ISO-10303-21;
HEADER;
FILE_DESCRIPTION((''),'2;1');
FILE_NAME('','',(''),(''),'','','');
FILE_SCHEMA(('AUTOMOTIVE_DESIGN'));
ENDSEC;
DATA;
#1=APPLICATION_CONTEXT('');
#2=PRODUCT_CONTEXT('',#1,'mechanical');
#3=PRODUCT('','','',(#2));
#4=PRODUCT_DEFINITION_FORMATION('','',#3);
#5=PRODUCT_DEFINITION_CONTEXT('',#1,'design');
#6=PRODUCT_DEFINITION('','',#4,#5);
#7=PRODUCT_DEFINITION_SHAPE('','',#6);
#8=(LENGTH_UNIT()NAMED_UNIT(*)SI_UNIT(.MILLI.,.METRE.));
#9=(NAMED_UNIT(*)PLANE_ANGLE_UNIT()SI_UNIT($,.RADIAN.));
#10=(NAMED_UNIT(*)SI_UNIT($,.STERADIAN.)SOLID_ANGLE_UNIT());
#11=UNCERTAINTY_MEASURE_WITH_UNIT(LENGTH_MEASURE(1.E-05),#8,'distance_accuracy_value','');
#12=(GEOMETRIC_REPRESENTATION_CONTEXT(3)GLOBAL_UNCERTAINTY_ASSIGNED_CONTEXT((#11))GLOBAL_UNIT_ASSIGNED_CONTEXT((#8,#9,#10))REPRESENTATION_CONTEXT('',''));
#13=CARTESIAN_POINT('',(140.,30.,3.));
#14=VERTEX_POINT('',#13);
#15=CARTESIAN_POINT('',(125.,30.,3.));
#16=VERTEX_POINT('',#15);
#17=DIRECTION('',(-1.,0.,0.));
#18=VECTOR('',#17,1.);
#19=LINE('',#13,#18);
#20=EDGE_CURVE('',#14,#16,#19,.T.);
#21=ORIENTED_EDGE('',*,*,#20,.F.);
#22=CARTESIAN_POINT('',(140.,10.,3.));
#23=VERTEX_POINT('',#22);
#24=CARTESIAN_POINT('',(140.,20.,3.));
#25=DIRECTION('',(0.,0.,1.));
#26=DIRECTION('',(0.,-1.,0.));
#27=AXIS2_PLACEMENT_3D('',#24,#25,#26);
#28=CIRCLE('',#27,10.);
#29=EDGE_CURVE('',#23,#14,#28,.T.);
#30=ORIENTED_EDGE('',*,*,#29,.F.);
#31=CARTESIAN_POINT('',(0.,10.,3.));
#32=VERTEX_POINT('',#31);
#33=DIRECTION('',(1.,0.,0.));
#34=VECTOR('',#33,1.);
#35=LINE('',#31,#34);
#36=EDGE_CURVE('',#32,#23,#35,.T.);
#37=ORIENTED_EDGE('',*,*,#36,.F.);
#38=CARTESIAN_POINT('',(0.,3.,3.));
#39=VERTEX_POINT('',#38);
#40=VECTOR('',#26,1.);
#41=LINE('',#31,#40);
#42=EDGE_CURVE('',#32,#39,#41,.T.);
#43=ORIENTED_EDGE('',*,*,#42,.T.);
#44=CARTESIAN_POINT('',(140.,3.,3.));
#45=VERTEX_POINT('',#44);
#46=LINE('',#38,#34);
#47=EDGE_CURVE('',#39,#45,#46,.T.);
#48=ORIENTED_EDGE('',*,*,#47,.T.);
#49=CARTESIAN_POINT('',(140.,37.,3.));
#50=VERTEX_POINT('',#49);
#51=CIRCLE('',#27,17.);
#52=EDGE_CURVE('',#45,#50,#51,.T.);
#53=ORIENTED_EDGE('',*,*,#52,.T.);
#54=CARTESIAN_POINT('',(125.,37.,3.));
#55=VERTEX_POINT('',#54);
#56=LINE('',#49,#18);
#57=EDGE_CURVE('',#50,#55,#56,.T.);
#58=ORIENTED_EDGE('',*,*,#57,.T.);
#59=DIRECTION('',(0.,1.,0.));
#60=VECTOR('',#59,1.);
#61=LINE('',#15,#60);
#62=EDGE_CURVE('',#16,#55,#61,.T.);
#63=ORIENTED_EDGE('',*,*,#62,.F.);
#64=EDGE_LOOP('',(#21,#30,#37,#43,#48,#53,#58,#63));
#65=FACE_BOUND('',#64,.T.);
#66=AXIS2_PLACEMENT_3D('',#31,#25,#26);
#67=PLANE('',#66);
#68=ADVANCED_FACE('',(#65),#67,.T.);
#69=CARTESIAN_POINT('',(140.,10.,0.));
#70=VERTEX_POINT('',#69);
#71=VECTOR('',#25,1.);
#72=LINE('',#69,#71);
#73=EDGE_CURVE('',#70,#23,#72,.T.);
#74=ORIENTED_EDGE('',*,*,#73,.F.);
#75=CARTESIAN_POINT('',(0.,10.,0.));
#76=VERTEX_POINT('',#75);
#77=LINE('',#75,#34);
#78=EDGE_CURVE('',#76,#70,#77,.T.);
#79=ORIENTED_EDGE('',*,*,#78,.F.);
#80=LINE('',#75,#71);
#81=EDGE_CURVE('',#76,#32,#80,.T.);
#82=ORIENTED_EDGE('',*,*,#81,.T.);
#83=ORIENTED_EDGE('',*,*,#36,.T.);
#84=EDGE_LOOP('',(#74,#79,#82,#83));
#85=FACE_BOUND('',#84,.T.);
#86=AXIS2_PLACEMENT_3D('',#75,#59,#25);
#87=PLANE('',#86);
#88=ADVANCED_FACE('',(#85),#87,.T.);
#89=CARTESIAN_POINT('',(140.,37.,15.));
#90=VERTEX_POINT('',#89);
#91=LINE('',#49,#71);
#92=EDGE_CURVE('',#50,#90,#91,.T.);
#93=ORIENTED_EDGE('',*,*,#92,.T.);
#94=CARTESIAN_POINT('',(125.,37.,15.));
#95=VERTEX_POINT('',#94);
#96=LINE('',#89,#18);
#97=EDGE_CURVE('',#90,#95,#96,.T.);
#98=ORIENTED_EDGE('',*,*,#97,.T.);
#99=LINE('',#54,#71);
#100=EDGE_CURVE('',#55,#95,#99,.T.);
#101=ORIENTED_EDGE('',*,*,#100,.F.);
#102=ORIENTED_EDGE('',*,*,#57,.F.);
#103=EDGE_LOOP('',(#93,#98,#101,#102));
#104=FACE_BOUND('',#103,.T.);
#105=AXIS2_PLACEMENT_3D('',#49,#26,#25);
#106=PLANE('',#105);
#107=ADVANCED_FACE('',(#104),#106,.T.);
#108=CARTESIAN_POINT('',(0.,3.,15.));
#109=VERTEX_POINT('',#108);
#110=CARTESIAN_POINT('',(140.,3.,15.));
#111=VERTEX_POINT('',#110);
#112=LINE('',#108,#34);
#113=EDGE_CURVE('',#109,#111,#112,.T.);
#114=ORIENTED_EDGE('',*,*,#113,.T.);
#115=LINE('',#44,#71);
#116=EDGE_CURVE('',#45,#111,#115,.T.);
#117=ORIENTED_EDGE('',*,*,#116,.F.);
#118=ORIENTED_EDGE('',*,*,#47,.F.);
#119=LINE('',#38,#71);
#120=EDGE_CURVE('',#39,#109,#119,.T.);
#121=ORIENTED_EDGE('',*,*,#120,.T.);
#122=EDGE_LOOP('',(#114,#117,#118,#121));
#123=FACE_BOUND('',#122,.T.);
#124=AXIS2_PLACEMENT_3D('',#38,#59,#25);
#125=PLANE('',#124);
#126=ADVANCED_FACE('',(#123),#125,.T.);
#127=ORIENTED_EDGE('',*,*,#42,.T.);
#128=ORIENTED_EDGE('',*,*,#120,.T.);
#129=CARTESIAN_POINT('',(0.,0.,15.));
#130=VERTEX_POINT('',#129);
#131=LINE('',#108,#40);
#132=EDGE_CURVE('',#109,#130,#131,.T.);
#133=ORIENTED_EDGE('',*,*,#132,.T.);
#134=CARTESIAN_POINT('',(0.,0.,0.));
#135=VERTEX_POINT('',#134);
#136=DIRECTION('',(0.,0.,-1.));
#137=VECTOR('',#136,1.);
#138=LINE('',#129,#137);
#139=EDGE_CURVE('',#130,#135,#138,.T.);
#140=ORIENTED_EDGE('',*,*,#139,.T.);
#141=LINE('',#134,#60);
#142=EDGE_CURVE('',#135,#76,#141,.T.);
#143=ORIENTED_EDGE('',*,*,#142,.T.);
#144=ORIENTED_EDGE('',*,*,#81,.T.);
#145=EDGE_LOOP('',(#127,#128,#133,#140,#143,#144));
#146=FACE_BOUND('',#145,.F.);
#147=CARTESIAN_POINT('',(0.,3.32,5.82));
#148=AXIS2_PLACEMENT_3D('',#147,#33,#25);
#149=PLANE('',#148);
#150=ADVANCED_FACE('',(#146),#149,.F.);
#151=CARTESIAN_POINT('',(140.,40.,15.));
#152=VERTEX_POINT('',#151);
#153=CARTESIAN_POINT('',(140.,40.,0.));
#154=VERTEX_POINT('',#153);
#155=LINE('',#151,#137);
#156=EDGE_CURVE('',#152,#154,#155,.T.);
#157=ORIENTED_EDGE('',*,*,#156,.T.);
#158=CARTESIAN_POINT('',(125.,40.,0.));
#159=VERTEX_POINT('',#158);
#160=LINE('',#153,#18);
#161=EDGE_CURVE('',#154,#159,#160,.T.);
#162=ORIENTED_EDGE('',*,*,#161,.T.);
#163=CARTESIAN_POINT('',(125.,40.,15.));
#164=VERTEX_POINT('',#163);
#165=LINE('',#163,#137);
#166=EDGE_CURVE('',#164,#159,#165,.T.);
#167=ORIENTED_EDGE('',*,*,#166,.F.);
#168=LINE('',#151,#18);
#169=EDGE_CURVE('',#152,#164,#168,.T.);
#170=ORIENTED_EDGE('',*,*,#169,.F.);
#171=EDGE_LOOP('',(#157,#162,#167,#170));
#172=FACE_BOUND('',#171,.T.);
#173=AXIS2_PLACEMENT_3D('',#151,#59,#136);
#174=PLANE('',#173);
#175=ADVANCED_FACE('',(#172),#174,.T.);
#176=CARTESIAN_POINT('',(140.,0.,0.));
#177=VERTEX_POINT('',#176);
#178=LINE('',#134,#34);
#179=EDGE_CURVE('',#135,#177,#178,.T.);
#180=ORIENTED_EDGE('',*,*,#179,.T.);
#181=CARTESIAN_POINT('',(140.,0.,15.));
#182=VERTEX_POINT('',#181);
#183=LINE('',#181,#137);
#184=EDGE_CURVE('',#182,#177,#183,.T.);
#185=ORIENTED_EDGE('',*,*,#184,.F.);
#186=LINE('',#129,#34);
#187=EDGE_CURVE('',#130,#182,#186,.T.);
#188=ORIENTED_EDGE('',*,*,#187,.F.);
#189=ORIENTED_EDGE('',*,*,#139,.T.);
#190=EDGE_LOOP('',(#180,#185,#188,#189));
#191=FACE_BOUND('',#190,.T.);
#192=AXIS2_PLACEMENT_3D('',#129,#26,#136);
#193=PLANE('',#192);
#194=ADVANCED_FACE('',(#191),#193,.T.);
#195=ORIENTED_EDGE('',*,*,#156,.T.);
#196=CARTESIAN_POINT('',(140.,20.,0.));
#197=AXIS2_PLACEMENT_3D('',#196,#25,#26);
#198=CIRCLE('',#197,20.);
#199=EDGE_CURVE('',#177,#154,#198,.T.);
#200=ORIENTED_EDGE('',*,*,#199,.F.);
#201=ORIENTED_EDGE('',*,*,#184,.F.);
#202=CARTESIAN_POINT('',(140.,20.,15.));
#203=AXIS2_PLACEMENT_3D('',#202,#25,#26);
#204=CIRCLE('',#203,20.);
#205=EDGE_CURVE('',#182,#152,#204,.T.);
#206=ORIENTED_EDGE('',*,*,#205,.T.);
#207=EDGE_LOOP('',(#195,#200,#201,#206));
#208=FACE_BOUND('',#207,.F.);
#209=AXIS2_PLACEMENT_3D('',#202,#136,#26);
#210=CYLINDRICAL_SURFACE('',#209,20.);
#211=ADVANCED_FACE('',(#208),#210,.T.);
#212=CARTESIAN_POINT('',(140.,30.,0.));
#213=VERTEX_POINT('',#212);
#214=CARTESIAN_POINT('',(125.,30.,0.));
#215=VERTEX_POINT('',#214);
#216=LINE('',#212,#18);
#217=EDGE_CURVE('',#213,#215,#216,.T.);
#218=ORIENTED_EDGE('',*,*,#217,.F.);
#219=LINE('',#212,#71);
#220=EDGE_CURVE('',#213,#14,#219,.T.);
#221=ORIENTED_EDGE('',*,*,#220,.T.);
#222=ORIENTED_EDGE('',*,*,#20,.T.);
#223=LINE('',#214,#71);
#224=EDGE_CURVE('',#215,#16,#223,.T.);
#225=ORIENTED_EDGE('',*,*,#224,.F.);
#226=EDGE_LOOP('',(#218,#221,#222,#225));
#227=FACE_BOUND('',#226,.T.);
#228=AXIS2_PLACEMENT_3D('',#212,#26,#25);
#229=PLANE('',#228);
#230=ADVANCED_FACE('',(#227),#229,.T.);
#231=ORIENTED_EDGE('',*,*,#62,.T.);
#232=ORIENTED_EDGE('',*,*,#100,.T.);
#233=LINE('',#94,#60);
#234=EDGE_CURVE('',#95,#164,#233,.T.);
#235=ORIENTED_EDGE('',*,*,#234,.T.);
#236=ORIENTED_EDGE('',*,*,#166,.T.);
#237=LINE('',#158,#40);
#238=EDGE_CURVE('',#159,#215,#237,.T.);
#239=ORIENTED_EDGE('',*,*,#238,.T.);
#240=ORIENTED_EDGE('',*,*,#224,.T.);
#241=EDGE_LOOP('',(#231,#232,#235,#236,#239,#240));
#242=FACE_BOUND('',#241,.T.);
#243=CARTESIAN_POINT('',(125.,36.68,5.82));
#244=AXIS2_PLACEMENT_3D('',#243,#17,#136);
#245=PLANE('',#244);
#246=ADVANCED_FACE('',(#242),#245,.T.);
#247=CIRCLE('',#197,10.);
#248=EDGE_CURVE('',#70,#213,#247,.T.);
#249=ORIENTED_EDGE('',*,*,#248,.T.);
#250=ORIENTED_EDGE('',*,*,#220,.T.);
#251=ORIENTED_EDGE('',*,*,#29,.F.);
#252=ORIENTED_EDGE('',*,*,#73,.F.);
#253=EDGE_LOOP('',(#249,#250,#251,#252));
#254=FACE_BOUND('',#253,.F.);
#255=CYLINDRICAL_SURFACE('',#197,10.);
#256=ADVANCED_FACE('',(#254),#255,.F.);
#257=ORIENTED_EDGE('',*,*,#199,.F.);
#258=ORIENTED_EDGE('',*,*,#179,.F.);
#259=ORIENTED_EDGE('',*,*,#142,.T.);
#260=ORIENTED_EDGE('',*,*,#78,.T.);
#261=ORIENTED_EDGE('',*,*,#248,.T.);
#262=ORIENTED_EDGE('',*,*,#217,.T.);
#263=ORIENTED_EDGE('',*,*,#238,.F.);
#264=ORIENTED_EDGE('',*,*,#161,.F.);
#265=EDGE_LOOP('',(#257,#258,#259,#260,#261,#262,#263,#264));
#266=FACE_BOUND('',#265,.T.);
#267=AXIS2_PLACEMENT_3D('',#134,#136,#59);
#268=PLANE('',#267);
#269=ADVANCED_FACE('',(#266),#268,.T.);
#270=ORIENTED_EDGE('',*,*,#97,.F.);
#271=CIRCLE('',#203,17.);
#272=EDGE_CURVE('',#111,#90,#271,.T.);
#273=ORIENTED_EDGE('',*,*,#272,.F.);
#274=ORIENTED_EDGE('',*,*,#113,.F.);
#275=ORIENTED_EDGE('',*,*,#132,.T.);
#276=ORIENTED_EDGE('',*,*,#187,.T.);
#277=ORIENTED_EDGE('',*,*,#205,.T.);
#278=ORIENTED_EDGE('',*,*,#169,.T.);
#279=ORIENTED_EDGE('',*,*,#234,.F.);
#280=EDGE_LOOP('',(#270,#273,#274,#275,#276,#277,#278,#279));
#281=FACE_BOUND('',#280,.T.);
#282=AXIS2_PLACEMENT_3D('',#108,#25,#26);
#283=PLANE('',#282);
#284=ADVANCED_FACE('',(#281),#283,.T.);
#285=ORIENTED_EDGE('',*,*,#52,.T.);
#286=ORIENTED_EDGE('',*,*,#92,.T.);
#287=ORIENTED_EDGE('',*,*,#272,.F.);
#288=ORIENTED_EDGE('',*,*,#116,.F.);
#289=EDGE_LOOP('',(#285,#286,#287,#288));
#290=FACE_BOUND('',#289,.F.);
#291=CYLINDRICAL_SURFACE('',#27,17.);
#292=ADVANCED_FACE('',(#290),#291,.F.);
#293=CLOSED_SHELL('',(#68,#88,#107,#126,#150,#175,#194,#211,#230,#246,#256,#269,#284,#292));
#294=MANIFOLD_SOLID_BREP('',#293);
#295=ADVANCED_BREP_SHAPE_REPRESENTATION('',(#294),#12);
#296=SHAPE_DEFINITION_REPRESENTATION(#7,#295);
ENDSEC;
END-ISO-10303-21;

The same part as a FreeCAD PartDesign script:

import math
import FreeCAD as App
import Part
import Sketcher
from FreeCAD import Vector

doc = App.newDocument("Part")
body = doc.addObject("PartDesign::Body", "Body")

sketch1 = body.newObject("Sketcher::SketchObject", "Sketch")
sketch1.AttachmentSupport = (doc.getObject("YZ_Plane"), [""])
sketch1.MapMode = "FlatFace"
sketch1.addGeometry(Part.LineSegment(Vector(0, 15, 0), Vector(0, 0, 0)), False)
sketch1.addGeometry(Part.LineSegment(Vector(0, 0, 0), Vector(10, 0, 0)), False)
sketch1.addGeometry(Part.LineSegment(Vector(10, 0, 0), Vector(10, 3, 0)), False)
sketch1.addGeometry(Part.LineSegment(Vector(10, 3, 0), Vector(3, 3, 0)), False)
sketch1.addGeometry(Part.LineSegment(Vector(3, 3, 0), Vector(3, 15, 0)), False)
sketch1.addGeometry(Part.LineSegment(Vector(3, 15, 0), Vector(0, 15, 0)), False)
sketch1.addConstraint(Sketcher.Constraint("Coincident", 0, 2, 1, 1))
sketch1.addConstraint(Sketcher.Constraint("Coincident", 1, 2, 2, 1))
sketch1.addConstraint(Sketcher.Constraint("Coincident", 2, 2, 3, 1))
sketch1.addConstraint(Sketcher.Constraint("Coincident", 3, 2, 4, 1))
sketch1.addConstraint(Sketcher.Constraint("Coincident", 4, 2, 5, 1))
sketch1.addConstraint(Sketcher.Constraint("Coincident", 5, 2, 0, 1))
sketch1.addConstraint(Sketcher.Constraint("Vertical", 0))
sketch1.addConstraint(Sketcher.Constraint("Horizontal", 1))
sketch1.addConstraint(Sketcher.Constraint("Vertical", 2))
sketch1.addConstraint(Sketcher.Constraint("Horizontal", 3))
sketch1.addConstraint(Sketcher.Constraint("Vertical", 4))
sketch1.addConstraint(Sketcher.Constraint("Horizontal", 5))
sketch1.addConstraint(Sketcher.Constraint("Coincident", 0, 2, -1, 1))
sketch1.addConstraint(Sketcher.Constraint("Equal", 5, 2))
sketch1.addConstraint(Sketcher.Constraint("DistanceX", 1, 1, 1, 2, 10.0))
sketch1.addConstraint(Sketcher.Constraint("DistanceX", 3, 2, 3, 1, 7.0))
sketch1.addConstraint(Sketcher.Constraint("DistanceY", 0, 2, 0, 1, 15.0))

sketch2 = body.newObject("Sketcher::SketchObject", "Sketch001")
sketch2.AttachmentSupport = (doc.getObject("XY_Plane"), [""])
sketch2.MapMode = "FlatFace"
sketch2.addGeometry(Part.LineSegment(Vector(0, 0, 0), Vector(140, 0, 0)), False)
sketch2.addGeometry(Part.ArcOfCircle(Part.Circle(Vector(140, 20, 0), Vector(0, 0, 1), 20), math.radians(-90), math.radians(90)), False)
sketch2.addGeometry(Part.LineSegment(Vector(140, 40, 0), Vector(125, 40, 0)), False)
sketch2.addConstraint(Sketcher.Constraint("Tangent", 0, 2, 1, 1))
sketch2.addConstraint(Sketcher.Constraint("Tangent", 1, 2, 2, 1))
sketch2.addConstraint(Sketcher.Constraint("Horizontal", 0))
sketch2.addConstraint(Sketcher.Constraint("Horizontal", 2))
sketch2.addConstraint(Sketcher.Constraint("Coincident", 0, 1, -1, 1))
sketch2.addConstraint(Sketcher.Constraint("Radius", 1, 20.0))
sketch2.addConstraint(Sketcher.Constraint("DistanceX", 0, 1, 0, 2, 140.0))
sketch2.addConstraint(Sketcher.Constraint("DistanceX", 2, 2, 2, 1, 15.0))
doc.recompute()

additivepipe = body.newObject("PartDesign::AdditivePipe", "AdditivePipe")
additivepipe.Profile = sketch1
additivepipe.Spine = (sketch2, ["Edge1", "Edge2", "Edge3"])

doc.recompute()
